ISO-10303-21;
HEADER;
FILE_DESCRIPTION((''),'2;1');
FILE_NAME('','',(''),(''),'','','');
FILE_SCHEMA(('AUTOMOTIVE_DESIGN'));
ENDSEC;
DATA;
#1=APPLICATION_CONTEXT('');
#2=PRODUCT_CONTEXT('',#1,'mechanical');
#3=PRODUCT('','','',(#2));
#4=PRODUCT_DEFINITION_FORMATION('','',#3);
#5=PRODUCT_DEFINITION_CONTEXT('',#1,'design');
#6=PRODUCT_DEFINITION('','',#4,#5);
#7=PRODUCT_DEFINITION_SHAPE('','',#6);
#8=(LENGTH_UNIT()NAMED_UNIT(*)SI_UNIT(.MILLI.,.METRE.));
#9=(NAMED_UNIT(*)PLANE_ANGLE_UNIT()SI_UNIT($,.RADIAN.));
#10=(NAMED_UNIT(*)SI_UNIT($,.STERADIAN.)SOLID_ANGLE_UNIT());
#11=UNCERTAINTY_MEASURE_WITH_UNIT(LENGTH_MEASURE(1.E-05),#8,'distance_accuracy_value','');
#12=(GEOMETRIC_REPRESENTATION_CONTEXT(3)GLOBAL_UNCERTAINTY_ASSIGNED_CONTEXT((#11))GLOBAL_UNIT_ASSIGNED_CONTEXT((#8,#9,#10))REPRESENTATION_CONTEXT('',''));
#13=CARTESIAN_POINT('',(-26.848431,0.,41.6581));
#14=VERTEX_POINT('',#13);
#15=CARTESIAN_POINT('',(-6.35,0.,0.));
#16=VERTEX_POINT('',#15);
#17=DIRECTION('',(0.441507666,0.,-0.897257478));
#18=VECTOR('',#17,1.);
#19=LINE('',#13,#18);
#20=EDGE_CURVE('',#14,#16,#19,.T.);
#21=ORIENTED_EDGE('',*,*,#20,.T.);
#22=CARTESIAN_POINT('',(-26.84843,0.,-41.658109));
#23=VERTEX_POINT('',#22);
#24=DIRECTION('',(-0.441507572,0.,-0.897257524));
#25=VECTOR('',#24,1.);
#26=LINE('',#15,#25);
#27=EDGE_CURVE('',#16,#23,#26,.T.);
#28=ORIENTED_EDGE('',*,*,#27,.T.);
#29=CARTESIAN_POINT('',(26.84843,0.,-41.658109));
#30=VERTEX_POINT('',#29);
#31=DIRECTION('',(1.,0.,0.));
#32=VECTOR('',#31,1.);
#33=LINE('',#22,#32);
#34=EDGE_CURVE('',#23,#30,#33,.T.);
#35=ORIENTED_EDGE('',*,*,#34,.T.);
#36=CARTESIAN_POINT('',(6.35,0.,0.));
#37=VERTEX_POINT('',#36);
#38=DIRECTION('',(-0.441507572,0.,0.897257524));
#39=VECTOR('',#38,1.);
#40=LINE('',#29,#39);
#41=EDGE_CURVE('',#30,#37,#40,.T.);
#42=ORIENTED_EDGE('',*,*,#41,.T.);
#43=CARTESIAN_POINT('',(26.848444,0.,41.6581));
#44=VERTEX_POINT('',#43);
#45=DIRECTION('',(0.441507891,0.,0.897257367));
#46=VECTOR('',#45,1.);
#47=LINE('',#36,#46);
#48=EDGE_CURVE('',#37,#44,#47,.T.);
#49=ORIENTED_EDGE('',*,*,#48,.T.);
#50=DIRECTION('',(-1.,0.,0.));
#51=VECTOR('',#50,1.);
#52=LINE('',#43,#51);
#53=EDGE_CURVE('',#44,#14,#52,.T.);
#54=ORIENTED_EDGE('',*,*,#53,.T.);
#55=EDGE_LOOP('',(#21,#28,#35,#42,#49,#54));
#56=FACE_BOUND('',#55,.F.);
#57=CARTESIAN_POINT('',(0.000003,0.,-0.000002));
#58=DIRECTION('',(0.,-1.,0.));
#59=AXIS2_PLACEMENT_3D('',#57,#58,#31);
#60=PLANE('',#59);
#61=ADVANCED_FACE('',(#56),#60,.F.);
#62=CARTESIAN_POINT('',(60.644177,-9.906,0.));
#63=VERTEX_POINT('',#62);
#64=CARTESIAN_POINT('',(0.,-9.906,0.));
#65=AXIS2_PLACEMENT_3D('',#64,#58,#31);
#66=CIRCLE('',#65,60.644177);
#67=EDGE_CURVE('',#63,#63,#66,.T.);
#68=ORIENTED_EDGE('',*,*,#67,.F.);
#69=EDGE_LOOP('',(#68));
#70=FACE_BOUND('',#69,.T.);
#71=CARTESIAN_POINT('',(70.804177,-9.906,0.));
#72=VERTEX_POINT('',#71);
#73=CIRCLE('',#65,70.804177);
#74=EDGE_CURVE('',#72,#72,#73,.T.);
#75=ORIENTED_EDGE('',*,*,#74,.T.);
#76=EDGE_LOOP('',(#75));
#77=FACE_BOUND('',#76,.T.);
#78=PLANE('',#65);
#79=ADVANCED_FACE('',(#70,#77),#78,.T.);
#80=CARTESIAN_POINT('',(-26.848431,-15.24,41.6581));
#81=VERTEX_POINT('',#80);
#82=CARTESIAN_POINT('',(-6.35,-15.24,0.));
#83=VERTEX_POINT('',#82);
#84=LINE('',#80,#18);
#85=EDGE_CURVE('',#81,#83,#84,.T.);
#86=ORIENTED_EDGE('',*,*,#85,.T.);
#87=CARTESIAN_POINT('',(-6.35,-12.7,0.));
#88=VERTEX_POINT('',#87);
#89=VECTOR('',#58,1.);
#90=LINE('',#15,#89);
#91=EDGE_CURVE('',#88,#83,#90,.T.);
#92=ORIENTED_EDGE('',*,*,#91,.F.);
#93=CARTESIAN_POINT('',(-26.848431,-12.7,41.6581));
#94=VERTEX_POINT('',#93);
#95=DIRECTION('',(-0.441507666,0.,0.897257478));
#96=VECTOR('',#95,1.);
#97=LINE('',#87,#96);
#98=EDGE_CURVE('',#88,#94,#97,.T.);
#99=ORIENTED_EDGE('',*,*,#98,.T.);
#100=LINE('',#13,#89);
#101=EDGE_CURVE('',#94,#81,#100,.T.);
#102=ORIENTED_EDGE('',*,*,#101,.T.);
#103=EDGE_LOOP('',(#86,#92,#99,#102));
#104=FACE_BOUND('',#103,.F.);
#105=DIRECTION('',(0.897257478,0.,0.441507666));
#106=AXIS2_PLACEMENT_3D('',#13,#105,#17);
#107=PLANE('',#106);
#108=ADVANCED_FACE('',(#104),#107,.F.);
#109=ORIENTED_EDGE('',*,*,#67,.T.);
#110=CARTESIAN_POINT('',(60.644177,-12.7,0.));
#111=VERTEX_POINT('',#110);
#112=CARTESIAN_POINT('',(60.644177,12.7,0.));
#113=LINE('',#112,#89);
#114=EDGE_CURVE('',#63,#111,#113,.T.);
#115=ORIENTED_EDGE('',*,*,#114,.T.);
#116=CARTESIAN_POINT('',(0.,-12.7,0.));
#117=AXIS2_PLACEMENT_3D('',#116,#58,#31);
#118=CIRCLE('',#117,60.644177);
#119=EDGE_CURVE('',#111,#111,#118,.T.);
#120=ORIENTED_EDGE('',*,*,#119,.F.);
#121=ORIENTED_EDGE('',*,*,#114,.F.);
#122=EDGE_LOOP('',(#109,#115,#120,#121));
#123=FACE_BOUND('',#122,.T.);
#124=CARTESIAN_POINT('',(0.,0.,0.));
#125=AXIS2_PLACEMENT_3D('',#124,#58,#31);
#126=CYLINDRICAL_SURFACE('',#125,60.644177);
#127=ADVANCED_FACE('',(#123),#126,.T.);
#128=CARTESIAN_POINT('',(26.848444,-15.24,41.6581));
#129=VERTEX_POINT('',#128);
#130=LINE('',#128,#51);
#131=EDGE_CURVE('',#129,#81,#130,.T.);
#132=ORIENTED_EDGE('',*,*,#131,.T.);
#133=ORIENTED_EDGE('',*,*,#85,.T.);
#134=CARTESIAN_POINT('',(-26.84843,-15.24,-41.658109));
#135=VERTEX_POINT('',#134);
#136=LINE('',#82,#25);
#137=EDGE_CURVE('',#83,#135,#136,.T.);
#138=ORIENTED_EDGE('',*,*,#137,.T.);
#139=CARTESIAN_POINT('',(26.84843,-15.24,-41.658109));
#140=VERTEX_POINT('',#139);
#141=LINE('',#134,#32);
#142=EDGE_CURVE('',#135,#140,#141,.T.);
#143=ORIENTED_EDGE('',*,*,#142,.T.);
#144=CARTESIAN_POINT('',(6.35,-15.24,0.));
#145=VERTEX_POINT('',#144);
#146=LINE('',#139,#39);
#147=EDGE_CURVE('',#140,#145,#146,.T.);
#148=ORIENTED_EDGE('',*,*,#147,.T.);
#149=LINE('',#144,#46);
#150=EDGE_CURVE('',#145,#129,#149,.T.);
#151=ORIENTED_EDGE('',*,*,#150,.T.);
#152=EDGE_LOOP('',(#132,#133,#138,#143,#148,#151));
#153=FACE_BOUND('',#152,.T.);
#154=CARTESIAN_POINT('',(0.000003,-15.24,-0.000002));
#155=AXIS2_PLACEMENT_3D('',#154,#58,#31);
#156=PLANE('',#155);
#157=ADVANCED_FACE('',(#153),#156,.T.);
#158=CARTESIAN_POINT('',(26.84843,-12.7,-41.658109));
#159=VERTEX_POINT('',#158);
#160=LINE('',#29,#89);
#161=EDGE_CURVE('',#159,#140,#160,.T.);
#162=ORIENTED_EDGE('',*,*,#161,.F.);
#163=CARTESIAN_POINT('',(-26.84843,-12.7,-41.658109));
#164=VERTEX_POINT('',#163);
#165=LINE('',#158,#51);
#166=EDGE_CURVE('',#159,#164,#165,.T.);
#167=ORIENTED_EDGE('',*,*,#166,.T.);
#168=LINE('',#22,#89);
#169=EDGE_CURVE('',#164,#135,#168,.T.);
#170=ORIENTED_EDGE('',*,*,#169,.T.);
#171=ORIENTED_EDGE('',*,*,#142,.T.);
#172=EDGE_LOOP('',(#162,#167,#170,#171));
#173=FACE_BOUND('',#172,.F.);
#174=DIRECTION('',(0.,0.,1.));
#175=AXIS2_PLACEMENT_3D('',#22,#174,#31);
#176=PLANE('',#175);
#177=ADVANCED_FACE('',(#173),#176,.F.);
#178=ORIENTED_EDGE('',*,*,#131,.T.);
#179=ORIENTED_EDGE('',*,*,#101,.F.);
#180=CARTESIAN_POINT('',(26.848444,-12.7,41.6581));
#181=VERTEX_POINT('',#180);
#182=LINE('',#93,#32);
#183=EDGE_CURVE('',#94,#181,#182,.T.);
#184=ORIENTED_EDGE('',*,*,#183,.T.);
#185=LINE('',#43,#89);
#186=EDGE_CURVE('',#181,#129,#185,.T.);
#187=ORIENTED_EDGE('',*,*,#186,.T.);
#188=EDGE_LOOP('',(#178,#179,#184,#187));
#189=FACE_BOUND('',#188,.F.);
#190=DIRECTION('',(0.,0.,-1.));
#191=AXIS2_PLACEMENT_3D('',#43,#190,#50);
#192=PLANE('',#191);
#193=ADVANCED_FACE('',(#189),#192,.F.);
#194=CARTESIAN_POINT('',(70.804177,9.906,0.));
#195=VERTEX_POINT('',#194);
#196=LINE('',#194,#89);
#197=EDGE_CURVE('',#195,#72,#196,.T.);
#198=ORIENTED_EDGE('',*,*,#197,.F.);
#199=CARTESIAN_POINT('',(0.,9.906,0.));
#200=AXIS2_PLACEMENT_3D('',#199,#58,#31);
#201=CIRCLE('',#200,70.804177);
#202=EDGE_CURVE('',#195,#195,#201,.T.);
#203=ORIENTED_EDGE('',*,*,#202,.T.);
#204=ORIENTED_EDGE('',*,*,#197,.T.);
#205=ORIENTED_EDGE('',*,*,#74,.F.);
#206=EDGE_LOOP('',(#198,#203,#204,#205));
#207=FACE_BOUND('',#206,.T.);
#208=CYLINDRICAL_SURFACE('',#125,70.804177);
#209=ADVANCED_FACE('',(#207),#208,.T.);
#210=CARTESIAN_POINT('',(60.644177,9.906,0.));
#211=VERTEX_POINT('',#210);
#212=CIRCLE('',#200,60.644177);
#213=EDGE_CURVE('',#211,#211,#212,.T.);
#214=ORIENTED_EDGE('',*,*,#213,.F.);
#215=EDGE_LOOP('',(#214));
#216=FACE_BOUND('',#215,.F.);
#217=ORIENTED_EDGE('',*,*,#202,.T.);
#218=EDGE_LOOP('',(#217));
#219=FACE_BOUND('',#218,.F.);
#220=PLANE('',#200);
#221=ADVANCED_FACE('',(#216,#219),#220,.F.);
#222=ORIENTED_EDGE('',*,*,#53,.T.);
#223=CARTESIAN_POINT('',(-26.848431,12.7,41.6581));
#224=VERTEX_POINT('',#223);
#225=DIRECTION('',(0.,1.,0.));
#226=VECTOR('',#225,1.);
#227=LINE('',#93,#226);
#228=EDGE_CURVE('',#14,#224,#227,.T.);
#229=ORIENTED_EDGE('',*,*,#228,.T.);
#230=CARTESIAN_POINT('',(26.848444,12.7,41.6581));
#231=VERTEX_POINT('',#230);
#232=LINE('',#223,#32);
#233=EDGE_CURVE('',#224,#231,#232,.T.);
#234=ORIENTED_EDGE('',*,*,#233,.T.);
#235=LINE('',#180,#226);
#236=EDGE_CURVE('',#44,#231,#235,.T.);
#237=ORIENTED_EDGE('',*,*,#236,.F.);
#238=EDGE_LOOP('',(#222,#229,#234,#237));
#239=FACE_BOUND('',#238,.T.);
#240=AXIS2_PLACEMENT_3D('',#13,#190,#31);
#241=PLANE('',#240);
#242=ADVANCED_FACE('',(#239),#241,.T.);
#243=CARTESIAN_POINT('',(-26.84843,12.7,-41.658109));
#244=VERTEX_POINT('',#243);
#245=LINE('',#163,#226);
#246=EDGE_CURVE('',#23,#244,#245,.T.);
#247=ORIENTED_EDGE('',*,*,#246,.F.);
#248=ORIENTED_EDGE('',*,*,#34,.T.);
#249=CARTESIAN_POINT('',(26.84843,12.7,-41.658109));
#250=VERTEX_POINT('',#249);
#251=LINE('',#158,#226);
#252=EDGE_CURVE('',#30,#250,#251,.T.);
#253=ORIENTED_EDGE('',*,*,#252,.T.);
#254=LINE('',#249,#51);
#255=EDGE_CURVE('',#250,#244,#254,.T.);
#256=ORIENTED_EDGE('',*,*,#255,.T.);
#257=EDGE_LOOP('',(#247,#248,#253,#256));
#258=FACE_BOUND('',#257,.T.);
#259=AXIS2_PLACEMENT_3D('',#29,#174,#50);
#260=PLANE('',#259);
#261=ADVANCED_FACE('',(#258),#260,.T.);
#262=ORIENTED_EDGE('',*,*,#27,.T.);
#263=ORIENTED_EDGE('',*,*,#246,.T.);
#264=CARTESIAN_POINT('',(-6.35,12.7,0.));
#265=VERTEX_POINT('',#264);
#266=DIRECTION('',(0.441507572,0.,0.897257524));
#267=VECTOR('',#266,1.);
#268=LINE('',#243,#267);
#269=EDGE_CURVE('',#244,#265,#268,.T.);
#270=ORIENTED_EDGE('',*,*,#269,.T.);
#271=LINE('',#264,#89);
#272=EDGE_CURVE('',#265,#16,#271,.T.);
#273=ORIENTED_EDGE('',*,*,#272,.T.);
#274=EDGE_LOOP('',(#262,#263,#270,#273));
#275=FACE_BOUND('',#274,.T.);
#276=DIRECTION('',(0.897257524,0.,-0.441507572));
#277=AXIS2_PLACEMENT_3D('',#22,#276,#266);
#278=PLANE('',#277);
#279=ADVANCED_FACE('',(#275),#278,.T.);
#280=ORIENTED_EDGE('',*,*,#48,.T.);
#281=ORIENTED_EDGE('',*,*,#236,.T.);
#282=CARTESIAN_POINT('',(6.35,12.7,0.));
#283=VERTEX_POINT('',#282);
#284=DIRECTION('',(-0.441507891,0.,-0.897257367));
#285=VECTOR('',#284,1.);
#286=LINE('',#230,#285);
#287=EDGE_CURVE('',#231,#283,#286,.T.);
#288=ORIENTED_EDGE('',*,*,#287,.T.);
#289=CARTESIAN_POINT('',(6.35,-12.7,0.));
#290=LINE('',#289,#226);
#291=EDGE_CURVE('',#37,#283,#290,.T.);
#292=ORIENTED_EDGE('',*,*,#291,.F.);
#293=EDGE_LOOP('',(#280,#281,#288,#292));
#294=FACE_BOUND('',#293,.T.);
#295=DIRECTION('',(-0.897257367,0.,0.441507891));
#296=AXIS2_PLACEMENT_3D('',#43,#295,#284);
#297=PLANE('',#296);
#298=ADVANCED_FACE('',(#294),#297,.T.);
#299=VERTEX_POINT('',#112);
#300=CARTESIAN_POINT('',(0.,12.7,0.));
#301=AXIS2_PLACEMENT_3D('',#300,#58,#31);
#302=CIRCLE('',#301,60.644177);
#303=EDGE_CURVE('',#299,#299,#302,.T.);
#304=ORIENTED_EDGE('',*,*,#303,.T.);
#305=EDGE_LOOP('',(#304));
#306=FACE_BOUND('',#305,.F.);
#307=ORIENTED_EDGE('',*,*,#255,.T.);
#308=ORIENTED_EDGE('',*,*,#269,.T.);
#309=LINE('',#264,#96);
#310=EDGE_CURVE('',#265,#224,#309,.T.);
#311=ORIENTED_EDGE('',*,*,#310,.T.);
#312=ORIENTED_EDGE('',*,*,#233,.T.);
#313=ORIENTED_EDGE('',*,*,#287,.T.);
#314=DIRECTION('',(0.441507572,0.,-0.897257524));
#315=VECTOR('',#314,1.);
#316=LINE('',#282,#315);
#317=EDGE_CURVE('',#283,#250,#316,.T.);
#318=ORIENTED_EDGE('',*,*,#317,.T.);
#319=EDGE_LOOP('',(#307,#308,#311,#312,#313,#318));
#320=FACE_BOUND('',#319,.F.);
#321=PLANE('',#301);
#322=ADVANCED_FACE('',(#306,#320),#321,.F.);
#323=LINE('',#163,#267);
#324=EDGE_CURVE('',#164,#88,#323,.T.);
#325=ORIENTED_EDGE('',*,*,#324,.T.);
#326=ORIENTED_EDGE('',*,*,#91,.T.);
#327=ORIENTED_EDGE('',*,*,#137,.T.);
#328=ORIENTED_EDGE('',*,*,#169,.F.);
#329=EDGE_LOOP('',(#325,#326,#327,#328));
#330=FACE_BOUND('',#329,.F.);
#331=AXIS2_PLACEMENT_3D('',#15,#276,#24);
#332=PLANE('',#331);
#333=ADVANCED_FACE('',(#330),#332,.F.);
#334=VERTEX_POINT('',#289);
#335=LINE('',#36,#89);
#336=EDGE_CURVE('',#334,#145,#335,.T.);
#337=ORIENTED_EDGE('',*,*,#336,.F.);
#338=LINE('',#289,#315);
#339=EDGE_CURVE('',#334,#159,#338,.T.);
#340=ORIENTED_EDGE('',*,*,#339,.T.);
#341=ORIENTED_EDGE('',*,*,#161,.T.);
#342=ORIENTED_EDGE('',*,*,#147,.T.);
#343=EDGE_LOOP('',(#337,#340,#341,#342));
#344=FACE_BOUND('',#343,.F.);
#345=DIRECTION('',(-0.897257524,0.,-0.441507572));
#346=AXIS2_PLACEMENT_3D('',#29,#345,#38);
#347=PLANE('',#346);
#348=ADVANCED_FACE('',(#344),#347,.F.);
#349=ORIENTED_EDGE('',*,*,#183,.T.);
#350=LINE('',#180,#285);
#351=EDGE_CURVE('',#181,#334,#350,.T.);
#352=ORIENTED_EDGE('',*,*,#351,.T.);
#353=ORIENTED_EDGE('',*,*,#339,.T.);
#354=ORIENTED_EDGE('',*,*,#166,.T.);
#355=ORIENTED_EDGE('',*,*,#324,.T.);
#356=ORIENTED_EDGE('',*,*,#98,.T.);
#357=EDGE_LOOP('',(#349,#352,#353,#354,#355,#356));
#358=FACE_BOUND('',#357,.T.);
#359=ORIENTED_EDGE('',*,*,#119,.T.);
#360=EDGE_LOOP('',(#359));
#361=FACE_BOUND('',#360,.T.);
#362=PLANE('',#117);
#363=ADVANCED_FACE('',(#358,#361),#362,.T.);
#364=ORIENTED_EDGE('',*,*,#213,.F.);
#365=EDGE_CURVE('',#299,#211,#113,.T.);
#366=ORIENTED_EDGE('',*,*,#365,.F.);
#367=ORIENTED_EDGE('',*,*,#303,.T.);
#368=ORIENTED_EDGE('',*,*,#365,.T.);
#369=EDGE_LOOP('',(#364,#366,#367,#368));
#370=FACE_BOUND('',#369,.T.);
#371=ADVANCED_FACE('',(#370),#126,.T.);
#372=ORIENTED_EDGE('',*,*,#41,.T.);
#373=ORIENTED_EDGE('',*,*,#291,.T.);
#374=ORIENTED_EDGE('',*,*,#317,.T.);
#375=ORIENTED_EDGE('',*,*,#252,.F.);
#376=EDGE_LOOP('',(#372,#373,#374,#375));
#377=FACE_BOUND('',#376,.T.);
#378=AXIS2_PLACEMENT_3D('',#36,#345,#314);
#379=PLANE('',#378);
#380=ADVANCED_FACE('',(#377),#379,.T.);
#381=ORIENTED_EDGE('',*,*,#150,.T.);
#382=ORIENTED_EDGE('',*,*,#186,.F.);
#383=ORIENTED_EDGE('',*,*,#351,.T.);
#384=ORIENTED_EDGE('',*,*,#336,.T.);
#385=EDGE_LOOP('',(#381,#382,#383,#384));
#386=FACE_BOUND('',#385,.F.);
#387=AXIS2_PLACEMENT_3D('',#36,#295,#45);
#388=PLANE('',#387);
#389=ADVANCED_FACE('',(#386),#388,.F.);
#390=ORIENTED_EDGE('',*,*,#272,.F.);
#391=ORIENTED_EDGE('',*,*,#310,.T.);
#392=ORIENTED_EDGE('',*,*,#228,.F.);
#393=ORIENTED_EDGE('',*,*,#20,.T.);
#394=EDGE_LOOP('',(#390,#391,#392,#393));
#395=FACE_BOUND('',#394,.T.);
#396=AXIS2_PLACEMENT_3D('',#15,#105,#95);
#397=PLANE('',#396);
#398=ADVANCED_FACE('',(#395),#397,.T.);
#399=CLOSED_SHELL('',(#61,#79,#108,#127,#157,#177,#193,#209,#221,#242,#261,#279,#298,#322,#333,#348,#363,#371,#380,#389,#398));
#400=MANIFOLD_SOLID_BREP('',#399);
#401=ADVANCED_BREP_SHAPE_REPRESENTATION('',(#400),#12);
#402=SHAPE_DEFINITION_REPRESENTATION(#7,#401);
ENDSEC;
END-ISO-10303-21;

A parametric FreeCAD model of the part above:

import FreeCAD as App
import Part
import Sketcher
Q = App.Units.Quantity

doc = App.newDocument("Part")
body = doc.addObject("PartDesign::Body", "Body")

sketch1 = body.newObject("Sketcher::SketchObject", "Sketch")
sketch1.AttachmentSupport = (doc.getObject("XZ_Plane"), [""])
sketch1.MapMode = "FlatFace"
sketch1.addGeometry([
    Part.Circle(App.Vector(0, 0, 0), App.Vector(0, 0, 1), 71),
    Part.Circle(App.Vector(0, 0, 0), App.Vector(0, 0, 1), 61),
], False)
sketch1.addConstraint([
    Sketcher.Constraint("Coincident", 0, 3, -1, 1),
    Sketcher.Constraint("Coincident", 1, 3, -1, 1),
    Sketcher.Constraint("Diameter", 0, 141.608354),
    Sketcher.Constraint("Diameter", 1, 121.288354),
])
pad1 = body.newObject("PartDesign::Pad", "Pad")
pad1.Profile = sketch1
pad1.Length = Q("0.78 in")
pad1.Midplane = True

sketch2 = body.newObject("Sketcher::SketchObject", "Sketch001")
sketch2.AttachmentSupport = (doc.getObject("XZ_Plane"), [""])
sketch2.MapMode = "FlatFace"
sketch2.addGeometry([
    Part.Circle(App.Vector(0, 0, 0), App.Vector(0, 0, 1), 61),
    Part.LineSegment(App.Vector(-27, -42, 0), App.Vector(-6, 0, 0)),
    Part.LineSegment(App.Vector(-6, 0, 0), App.Vector(-27, 42, 0)),
    Part.LineSegment(App.Vector(-27, 42, 0), App.Vector(27, 42, 0)),
    Part.LineSegment(App.Vector(27, 42, 0), App.Vector(6, 0, 0)),
    Part.LineSegment(App.Vector(6, 0, 0), App.Vector(27, -42, 0)),
    Part.LineSegment(App.Vector(27, -42, 0), App.Vector(-27, -42, 0)),
], False)
sketch2.addConstraint([
    Sketcher.Constraint("Coincident", 1, 2, 2, 1),
    Sketcher.Constraint("Coincident", 2, 2, 3, 1),
    Sketcher.Constraint("Coincident", 3, 2, 4, 1),
    Sketcher.Constraint("Coincident", 4, 2, 5, 1),
    Sketcher.Constraint("Coincident", 5, 2, 6, 1),
    Sketcher.Constraint("Coincident", 6, 2, 1, 1),
    Sketcher.Constraint("Horizontal", 3),
    Sketcher.Constraint("Horizontal", 6),
    Sketcher.Constraint("Coincident", 0, 3, -1, 1),
    Sketcher.Constraint("Symmetric", 1, 2, 4, 2, -1, 1),
    Sketcher.Constraint("Symmetric", 2, 2, 5, 2, -1, 1),
    Sketcher.Constraint("PointOnObject", 1, 2, -1),
    Sketcher.Constraint("Parallel", 1, 4),
    Sketcher.Constraint("Vertical", 2, 2, 6, 2),
    Sketcher.Constraint("DistanceX", 1, 2, 4, 2, Q("0.5 in")),
    Sketcher.Constraint("Diameter", 0, 121.288354),
    Sketcher.Constraint("DistanceX", 6, 2, 6, 1, 53.69686),
    Sketcher.Constraint("DistanceY", -1, 1, 2, 2, 41.6581),
])
pad2 = body.newObject("PartDesign::Pad", "Pad001")
pad2.Profile = sketch2
pad2.Length = Q("1 in")
pad2.Midplane = True

sketch3 = body.newObject("Sketcher::SketchObject", "Sketch002")
sketch3.AttachmentSupport = (doc.getObject("XZ_Plane"), [""])
sketch3.MapMode = "FlatFace"
sketch3.addGeometry([
    Part.LineSegment(App.Vector(27, 42, 0), App.Vector(-27, 42, 0)),
    Part.LineSegment(App.Vector(-27, 42, 0), App.Vector(-6, 0, 0)),
    Part.LineSegment(App.Vector(-6, 0, 0), App.Vector(-27, -42, 0)),
    Part.LineSegment(App.Vector(-27, -42, 0), App.Vector(27, -42, 0)),
    Part.LineSegment(App.Vector(27, -42, 0), App.Vector(6, 0, 0)),
    Part.LineSegment(App.Vector(6, 0, 0), App.Vector(27, 42, 0)),
], False)
sketch3.addConstraint([
    Sketcher.Constraint("Coincident", 0, 2, 1, 1),
    Sketcher.Constraint("Coincident", 1, 2, 2, 1),
    Sketcher.Constraint("Coincident", 2, 2, 3, 1),
    Sketcher.Constraint("Coincident", 3, 2, 4, 1),
    Sketcher.Constraint("Coincident", 4, 2, 5, 1),
    Sketcher.Constraint("Coincident", 5, 2, 0, 1),
    Sketcher.Constraint("Horizontal", 0),
    Sketcher.Constraint("Horizontal", 3),
    Sketcher.Constraint("Symmetric", 0, 2, 3, 2, -1, 1),
    Sketcher.Constraint("Symmetric", 1, 2, 4, 2, -1, 1),
    Sketcher.Constraint("PointOnObject", 1, 2, -1),
    Sketcher.Constraint("Parallel", 2, 5),
    Sketcher.Constraint("Vertical", 0, 2, 2, 2),
    Sketcher.Constraint("DistanceX", 1, 2, 4, 2, Q("0.5 in")),
    Sketcher.Constraint("DistanceX", 3, 1, 3, 2, 53.69686),
    Sketcher.Constraint("DistanceY", -1, 1, 0, 2, 41.6581),
])
pad3 = body.newObject("PartDesign::Pad", "Pad002")
pad3.Profile = sketch3
pad3.Length = Q("0.6 in")

doc.recompute()
